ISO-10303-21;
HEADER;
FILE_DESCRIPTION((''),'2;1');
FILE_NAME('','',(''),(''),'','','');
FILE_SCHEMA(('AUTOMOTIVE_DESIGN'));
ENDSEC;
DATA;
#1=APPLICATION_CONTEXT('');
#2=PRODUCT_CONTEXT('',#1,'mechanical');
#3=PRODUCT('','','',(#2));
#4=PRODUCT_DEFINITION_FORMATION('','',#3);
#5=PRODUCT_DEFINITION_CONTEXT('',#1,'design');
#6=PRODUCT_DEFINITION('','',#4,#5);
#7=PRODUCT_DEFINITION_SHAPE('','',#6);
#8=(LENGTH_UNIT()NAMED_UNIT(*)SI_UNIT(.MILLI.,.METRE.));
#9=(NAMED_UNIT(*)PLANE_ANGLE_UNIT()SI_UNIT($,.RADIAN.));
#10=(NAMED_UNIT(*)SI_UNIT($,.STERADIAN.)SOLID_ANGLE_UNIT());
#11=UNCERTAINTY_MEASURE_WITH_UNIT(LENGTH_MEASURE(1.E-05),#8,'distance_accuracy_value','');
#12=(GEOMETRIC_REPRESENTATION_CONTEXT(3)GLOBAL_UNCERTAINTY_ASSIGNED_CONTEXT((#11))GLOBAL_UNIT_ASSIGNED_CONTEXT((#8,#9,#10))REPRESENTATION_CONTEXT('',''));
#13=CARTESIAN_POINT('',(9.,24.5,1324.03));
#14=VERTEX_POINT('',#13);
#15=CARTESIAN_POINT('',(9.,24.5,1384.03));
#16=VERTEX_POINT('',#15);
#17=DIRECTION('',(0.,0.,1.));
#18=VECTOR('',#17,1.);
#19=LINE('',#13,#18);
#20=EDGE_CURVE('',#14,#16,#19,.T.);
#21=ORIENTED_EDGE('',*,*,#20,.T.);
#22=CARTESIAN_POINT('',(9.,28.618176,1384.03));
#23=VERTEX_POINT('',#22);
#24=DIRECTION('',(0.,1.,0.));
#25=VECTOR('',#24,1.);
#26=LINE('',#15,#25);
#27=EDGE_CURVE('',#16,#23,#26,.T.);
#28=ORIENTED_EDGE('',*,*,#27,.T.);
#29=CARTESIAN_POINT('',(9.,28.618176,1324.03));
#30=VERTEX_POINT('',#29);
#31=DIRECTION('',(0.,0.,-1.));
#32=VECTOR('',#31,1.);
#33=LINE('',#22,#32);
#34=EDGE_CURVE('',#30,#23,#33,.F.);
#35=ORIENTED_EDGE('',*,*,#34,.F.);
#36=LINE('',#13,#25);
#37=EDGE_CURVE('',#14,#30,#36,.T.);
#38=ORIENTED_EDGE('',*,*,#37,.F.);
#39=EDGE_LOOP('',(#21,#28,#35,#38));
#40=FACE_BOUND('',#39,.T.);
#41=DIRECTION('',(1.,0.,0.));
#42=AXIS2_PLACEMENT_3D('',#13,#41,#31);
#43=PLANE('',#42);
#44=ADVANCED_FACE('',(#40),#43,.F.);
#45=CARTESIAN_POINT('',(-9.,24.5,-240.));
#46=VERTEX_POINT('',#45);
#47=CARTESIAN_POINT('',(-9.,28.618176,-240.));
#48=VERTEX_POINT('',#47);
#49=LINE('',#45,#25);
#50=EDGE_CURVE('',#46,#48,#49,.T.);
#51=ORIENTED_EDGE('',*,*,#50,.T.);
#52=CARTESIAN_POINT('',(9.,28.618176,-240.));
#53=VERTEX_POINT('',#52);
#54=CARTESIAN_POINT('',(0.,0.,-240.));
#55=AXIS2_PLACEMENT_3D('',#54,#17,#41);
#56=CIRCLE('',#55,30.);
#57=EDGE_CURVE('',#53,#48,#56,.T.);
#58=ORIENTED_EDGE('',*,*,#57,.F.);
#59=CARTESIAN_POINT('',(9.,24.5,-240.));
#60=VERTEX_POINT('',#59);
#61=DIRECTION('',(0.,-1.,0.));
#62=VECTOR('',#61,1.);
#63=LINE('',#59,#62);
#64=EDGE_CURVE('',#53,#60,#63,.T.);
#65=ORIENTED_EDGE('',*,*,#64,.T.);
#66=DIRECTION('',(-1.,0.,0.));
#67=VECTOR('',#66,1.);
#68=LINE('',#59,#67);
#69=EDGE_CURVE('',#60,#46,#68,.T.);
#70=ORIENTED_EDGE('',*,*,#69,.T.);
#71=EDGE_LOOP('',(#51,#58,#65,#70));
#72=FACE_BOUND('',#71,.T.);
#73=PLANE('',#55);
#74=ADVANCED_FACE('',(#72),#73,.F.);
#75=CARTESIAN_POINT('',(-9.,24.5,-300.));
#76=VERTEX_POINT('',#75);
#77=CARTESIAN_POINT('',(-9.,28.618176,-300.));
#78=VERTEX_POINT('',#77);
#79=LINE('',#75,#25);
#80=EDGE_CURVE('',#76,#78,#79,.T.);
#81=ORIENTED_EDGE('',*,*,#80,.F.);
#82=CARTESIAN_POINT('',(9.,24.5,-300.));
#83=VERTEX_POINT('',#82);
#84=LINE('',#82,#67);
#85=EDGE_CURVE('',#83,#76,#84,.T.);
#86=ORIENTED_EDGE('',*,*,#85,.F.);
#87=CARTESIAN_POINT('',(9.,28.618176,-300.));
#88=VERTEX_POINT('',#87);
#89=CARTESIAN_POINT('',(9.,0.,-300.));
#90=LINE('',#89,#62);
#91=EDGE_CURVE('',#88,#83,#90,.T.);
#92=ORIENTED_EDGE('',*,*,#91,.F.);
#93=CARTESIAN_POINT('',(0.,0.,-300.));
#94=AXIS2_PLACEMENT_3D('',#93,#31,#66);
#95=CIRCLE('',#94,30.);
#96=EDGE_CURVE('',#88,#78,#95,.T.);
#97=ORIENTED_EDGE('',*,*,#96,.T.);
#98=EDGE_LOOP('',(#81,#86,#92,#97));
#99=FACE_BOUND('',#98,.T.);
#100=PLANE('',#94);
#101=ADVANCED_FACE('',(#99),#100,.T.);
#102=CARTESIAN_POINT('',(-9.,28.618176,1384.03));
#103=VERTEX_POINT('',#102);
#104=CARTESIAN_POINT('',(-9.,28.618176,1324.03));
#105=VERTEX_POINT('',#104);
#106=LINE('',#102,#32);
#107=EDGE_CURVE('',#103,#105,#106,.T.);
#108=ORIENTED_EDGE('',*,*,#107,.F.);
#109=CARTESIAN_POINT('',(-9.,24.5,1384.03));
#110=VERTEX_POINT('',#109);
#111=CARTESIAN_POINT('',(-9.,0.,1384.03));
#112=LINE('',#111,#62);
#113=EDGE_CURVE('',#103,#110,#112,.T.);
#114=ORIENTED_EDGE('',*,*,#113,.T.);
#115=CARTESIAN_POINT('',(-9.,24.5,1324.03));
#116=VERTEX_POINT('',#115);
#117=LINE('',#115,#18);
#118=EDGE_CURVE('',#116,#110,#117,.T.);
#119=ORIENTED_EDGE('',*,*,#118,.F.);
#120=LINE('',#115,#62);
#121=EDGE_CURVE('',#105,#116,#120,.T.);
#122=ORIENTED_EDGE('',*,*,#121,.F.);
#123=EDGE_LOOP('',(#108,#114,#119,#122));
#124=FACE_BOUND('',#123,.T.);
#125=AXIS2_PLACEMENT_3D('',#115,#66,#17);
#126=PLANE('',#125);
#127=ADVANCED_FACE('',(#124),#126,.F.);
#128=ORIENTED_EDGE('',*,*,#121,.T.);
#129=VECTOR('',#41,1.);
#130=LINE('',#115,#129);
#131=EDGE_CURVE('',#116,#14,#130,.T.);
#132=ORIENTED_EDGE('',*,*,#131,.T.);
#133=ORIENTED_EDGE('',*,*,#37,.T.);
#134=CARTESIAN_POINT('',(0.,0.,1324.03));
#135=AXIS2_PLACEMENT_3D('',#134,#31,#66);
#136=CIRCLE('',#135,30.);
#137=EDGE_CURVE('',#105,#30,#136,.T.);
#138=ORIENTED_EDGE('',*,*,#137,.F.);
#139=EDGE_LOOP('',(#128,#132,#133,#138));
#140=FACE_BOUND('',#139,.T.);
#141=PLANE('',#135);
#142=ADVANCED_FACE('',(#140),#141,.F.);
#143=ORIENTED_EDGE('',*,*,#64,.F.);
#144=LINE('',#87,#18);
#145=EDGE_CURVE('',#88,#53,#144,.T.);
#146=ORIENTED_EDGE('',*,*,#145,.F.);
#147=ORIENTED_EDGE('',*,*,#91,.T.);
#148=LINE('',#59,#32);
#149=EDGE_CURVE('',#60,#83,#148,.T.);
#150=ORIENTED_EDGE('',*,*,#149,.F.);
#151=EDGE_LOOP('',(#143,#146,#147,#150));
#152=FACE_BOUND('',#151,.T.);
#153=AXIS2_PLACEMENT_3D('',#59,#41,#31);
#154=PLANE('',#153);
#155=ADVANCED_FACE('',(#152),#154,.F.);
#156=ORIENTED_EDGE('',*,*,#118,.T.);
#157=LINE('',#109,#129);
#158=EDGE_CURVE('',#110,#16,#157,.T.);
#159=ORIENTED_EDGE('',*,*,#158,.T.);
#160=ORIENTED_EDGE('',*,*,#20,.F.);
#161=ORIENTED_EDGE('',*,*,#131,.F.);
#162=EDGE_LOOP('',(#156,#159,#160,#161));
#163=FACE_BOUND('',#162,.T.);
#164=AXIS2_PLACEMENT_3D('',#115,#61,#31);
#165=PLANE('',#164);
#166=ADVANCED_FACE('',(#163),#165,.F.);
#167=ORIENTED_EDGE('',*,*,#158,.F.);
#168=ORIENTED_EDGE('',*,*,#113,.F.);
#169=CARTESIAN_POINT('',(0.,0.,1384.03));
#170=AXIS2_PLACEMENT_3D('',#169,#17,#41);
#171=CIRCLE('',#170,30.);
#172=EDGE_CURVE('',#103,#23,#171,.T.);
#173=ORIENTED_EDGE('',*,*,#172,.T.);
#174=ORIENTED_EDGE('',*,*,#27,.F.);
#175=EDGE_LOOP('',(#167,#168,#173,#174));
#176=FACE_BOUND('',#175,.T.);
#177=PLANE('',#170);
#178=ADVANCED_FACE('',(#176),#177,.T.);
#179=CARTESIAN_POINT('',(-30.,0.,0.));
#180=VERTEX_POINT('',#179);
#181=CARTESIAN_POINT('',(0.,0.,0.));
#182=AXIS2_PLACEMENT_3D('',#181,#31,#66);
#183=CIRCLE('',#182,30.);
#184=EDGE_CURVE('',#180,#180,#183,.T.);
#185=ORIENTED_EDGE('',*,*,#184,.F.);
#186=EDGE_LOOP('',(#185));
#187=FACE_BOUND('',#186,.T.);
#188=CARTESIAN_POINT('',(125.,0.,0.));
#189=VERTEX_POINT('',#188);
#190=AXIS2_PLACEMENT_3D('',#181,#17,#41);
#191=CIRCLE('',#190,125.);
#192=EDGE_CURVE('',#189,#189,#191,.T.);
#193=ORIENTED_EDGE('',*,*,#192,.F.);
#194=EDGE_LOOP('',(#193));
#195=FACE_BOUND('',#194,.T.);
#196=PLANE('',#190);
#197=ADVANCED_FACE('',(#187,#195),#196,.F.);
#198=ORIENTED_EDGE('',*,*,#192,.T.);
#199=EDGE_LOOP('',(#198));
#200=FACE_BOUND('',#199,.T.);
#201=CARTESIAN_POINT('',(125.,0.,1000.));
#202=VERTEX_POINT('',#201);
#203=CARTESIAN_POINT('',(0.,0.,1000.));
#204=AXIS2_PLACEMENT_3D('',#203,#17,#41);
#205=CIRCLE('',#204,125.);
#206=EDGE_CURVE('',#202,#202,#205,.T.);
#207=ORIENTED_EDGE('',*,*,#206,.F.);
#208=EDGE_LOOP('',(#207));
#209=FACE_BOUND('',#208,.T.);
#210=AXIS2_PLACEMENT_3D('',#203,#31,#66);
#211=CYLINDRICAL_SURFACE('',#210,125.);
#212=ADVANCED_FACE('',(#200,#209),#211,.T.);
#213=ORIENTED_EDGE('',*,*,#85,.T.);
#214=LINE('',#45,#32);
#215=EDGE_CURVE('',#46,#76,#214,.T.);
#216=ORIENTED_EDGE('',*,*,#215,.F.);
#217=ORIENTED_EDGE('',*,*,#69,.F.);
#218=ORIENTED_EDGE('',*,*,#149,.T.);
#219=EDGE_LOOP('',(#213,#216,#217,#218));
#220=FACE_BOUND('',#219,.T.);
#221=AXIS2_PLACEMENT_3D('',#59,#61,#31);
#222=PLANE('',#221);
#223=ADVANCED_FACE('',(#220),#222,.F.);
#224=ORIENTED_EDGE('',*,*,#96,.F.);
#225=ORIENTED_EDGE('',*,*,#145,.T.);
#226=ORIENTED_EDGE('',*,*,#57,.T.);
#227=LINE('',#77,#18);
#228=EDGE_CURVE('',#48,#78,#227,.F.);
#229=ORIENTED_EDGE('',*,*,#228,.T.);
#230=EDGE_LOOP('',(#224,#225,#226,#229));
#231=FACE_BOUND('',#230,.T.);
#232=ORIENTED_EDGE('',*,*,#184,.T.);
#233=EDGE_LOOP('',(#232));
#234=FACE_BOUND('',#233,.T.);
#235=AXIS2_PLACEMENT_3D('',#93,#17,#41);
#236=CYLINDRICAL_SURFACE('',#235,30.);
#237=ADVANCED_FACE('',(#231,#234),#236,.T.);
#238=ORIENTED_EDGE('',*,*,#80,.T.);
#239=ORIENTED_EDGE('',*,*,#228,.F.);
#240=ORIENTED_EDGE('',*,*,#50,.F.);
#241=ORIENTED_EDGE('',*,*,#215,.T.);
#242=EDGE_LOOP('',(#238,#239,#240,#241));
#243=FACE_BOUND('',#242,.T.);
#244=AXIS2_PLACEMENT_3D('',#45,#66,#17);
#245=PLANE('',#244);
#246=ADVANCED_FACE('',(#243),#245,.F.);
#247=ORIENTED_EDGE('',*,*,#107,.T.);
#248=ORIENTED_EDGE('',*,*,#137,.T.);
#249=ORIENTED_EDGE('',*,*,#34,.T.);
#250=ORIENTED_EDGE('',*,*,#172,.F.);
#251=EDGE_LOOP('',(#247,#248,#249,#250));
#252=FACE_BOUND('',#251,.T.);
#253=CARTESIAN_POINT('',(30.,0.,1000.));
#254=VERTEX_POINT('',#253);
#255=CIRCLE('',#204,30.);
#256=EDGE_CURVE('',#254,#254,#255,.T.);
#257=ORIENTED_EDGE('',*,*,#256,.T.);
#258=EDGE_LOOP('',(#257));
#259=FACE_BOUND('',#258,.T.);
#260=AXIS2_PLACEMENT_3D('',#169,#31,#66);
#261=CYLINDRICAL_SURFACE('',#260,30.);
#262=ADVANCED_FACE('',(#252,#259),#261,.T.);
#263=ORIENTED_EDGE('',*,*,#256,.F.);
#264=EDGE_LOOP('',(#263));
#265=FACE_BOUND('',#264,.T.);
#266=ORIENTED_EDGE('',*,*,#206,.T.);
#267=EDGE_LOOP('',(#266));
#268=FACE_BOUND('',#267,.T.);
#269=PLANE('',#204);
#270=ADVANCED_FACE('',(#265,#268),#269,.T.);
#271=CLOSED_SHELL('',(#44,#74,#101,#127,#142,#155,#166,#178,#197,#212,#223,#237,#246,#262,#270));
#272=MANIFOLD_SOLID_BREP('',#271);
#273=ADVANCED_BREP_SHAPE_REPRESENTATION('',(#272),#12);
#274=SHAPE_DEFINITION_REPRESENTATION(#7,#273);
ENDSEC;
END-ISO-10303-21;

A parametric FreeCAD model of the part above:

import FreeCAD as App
import Part
import Sketcher
from FreeCAD import Vector


def add_polygon(sketch, points):
    """Adds a closed chain of lines whose ends are joined by coincident constraints."""
    first, n = sketch.GeometryCount, len(points)
    for a, b in zip(points, points[1:] + points[:1]):
        sketch.addGeometry(Part.LineSegment(App.Vector(*a, 0), App.Vector(*b, 0)), False)
    for i in range(n):
        sketch.addConstraint(Sketcher.Constraint("Coincident", first + i, 2, first + (i + 1) % n, 1))

doc = App.newDocument("Part")
body = doc.addObject("PartDesign::Body", "Body")

# Sketch on XY plane
sketch1 = body.newObject("Sketcher::SketchObject", "Sketch")
sketch1.AttachmentSupport = (doc.getObject("XY_Plane"), [""])
sketch1.MapMode = "FlatFace"
sketch1.addGeometry(Part.Circle(Vector(0, 0, 0), Vector(0, 0, 1), 125), False)
sketch1.addConstraint([
    Sketcher.Constraint("Coincident", 0, 3, -1, 1),
    Sketcher.Constraint("Diameter", 0, 250.0),
])
pad1 = body.newObject("PartDesign::Pad", "Pad")
pad1.Profile = sketch1
pad1.Length = 1000

# Sketch on XY plane
sketch2 = body.newObject("Sketcher::SketchObject", "Sketch001")
sketch2.AttachmentSupport = (doc.getObject("XY_Plane"), [""])
sketch2.MapMode = "FlatFace"
sketch2.AttachmentOffset = App.Placement(Vector(0, 0, 1000), App.Rotation())
sketch2.addGeometry(Part.Circle(Vector(0, 0, 0), Vector(0, 0, 1), 30), False)
sketch2.addConstraint([
    Sketcher.Constraint("Coincident", 0, 3, -1, 1),
    Sketcher.Constraint("Diameter", 0, 60.0),
])
pad2 = body.newObject("PartDesign::Pad", "Pad001")
pad2.Profile = sketch2
pad2.Length = 384.03

# Sketch on XY plane
sketch3 = body.newObject("Sketcher::SketchObject", "Sketch002")
sketch3.AttachmentSupport = (doc.getObject("XY_Plane"), [""])
sketch3.MapMode = "FlatFace"
sketch3.AttachmentOffset = App.Placement(Vector(0, 0, -300), App.Rotation())
sketch3.addGeometry(Part.Circle(Vector(0, 0, 0), Vector(0, 0, 1), 30), False)
sketch3.addConstraint([
    Sketcher.Constraint("Coincident", 0, 3, -1, 1),
    Sketcher.Constraint("Diameter", 0, 60.0),
])
pad3 = body.newObject("PartDesign::Pad", "Pad002")
pad3.Profile = sketch3
pad3.Length = 300

# Sketch on XY plane
sketch4 = body.newObject("Sketcher::SketchObject", "Sketch003")
sketch4.AttachmentSupport = (doc.getObject("XY_Plane"), [""])
sketch4.MapMode = "FlatFace"
sketch4.AttachmentOffset = App.Placement(Vector(0, 0, 1384.03), App.Rotation())
add_polygon(sketch4, [(-9, 35.5), (-9, 24.5), (9, 24.5), (9, 35.5)])  # lines 0-3
sketch4.addConstraint([
    Sketcher.Constraint("Vertical", 0),
    Sketcher.Constraint("Horizontal", 1),
    Sketcher.Constraint("Vertical", 2),
    Sketcher.Constraint("Horizontal", 3),
    Sketcher.Constraint("DistanceX", 1, 1, 1, 2, 18.0),
    Sketcher.Constraint("DistanceY", 0, 2, 0, 1, 11.0),
    Sketcher.Constraint("DistanceX", 0, 2, -1, 1, 9.0),
    Sketcher.Constraint("DistanceY", -1, 1, 0, 2, 24.5),
])
pocket1 = body.newObject("PartDesign::Pocket", "Pocket")
pocket1.Profile = sketch4
pocket1.Length = 60

# Sketch on XY plane
sketch5 = body.newObject("Sketcher::SketchObject", "Sketch004")
sketch5.AttachmentSupport = (doc.getObject("XY_Plane"), [""])
sketch5.MapMode = "FlatFace"
sketch5.AttachmentOffset = App.Placement(Vector(0, 0, -300), App.Rotation())
add_polygon(sketch5, [(9, 35.5), (9, 24.5), (-9, 24.5), (-9, 35.5)])  # lines 0-3
sketch5.addConstraint([
    Sketcher.Constraint("Vertical", 0),
    Sketcher.Constraint("Horizontal", 1),
    Sketcher.Constraint("Vertical", 2),
    Sketcher.Constraint("Horizontal", 3),
    Sketcher.Constraint("DistanceX", 1, 2, 1, 1, 18.0),
    Sketcher.Constraint("DistanceY", 0, 2, 0, 1, 11.0),
    Sketcher.Constraint("DistanceX", -1, 1, 0, 2, 9.0),
    Sketcher.Constraint("DistanceY", -1, 1, 0, 2, 24.5),
])
pocket2 = body.newObject("PartDesign::Pocket", "Pocket001")
pocket2.Profile = sketch5
pocket2.Length = 60
pocket2.Reversed = True

doc.recompute()
